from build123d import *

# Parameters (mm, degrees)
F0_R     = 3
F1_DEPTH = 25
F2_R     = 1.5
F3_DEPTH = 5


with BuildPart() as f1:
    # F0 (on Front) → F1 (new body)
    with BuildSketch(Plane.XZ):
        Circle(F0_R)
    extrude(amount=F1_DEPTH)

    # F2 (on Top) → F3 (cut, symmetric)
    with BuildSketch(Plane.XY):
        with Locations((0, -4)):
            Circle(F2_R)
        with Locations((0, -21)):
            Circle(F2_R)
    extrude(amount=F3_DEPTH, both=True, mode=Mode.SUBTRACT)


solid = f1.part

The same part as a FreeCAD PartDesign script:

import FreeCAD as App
import Part
import Sketcher
from FreeCAD import Vector
Q = App.Units.Quantity

doc = App.newDocument("Part")
body = doc.addObject("PartDesign::Body", "Body")

sketch1 = body.newObject("Sketcher::SketchObject", "Sketch")
sketch1.AttachmentSupport = (doc.getObject("XZ_Plane"), [""])
sketch1.MapMode = "FlatFace"
sketch1.addGeometry(Part.Circle(Vector(0, 0, 0), Vector(0, 0, 1), 3), False)
sketch1.addConstraint([
    Sketcher.Constraint("Coincident", 0, 3, -1, 1),
    Sketcher.Constraint("Diameter", 0, Q("6 mm")),
])
pad1 = body.newObject("PartDesign::Pad", "Pad")
pad1.Profile = sketch1
pad1.Length = 25

sketch2 = body.newObject("Sketcher::SketchObject", "Sketch001")
sketch2.AttachmentSupport = (doc.getObject("XY_Plane"), [""])
sketch2.MapMode = "FlatFace"
sketch2.addGeometry([
    Part.Circle(Vector(0, -4, 0), Vector(0, 0, 1), 1.5),
    Part.Circle(Vector(0, -21, 0), Vector(0, 0, 1), 1.5),
], False)
sketch2.addConstraint([
    Sketcher.Constraint("Equal", 0, 1),
    Sketcher.Constraint("PointOnObject", 0, 3, -2),
    Sketcher.Constraint("PointOnObject", 1, 3, -2),
    Sketcher.Constraint("Diameter", 0, Q("3 mm")),
    Sketcher.Constraint("DistanceY", 0, 3, -1, 1, Q("4 mm")),
    Sketcher.Constraint("DistanceY", 1, 3, -1, 1, Q("21 mm")),
])
pocket1 = body.newObject("PartDesign::Pocket", "Pocket")
pocket1.Profile = sketch2
pocket1.Length = 10
pocket1.Midplane = True

doc.recompute()
